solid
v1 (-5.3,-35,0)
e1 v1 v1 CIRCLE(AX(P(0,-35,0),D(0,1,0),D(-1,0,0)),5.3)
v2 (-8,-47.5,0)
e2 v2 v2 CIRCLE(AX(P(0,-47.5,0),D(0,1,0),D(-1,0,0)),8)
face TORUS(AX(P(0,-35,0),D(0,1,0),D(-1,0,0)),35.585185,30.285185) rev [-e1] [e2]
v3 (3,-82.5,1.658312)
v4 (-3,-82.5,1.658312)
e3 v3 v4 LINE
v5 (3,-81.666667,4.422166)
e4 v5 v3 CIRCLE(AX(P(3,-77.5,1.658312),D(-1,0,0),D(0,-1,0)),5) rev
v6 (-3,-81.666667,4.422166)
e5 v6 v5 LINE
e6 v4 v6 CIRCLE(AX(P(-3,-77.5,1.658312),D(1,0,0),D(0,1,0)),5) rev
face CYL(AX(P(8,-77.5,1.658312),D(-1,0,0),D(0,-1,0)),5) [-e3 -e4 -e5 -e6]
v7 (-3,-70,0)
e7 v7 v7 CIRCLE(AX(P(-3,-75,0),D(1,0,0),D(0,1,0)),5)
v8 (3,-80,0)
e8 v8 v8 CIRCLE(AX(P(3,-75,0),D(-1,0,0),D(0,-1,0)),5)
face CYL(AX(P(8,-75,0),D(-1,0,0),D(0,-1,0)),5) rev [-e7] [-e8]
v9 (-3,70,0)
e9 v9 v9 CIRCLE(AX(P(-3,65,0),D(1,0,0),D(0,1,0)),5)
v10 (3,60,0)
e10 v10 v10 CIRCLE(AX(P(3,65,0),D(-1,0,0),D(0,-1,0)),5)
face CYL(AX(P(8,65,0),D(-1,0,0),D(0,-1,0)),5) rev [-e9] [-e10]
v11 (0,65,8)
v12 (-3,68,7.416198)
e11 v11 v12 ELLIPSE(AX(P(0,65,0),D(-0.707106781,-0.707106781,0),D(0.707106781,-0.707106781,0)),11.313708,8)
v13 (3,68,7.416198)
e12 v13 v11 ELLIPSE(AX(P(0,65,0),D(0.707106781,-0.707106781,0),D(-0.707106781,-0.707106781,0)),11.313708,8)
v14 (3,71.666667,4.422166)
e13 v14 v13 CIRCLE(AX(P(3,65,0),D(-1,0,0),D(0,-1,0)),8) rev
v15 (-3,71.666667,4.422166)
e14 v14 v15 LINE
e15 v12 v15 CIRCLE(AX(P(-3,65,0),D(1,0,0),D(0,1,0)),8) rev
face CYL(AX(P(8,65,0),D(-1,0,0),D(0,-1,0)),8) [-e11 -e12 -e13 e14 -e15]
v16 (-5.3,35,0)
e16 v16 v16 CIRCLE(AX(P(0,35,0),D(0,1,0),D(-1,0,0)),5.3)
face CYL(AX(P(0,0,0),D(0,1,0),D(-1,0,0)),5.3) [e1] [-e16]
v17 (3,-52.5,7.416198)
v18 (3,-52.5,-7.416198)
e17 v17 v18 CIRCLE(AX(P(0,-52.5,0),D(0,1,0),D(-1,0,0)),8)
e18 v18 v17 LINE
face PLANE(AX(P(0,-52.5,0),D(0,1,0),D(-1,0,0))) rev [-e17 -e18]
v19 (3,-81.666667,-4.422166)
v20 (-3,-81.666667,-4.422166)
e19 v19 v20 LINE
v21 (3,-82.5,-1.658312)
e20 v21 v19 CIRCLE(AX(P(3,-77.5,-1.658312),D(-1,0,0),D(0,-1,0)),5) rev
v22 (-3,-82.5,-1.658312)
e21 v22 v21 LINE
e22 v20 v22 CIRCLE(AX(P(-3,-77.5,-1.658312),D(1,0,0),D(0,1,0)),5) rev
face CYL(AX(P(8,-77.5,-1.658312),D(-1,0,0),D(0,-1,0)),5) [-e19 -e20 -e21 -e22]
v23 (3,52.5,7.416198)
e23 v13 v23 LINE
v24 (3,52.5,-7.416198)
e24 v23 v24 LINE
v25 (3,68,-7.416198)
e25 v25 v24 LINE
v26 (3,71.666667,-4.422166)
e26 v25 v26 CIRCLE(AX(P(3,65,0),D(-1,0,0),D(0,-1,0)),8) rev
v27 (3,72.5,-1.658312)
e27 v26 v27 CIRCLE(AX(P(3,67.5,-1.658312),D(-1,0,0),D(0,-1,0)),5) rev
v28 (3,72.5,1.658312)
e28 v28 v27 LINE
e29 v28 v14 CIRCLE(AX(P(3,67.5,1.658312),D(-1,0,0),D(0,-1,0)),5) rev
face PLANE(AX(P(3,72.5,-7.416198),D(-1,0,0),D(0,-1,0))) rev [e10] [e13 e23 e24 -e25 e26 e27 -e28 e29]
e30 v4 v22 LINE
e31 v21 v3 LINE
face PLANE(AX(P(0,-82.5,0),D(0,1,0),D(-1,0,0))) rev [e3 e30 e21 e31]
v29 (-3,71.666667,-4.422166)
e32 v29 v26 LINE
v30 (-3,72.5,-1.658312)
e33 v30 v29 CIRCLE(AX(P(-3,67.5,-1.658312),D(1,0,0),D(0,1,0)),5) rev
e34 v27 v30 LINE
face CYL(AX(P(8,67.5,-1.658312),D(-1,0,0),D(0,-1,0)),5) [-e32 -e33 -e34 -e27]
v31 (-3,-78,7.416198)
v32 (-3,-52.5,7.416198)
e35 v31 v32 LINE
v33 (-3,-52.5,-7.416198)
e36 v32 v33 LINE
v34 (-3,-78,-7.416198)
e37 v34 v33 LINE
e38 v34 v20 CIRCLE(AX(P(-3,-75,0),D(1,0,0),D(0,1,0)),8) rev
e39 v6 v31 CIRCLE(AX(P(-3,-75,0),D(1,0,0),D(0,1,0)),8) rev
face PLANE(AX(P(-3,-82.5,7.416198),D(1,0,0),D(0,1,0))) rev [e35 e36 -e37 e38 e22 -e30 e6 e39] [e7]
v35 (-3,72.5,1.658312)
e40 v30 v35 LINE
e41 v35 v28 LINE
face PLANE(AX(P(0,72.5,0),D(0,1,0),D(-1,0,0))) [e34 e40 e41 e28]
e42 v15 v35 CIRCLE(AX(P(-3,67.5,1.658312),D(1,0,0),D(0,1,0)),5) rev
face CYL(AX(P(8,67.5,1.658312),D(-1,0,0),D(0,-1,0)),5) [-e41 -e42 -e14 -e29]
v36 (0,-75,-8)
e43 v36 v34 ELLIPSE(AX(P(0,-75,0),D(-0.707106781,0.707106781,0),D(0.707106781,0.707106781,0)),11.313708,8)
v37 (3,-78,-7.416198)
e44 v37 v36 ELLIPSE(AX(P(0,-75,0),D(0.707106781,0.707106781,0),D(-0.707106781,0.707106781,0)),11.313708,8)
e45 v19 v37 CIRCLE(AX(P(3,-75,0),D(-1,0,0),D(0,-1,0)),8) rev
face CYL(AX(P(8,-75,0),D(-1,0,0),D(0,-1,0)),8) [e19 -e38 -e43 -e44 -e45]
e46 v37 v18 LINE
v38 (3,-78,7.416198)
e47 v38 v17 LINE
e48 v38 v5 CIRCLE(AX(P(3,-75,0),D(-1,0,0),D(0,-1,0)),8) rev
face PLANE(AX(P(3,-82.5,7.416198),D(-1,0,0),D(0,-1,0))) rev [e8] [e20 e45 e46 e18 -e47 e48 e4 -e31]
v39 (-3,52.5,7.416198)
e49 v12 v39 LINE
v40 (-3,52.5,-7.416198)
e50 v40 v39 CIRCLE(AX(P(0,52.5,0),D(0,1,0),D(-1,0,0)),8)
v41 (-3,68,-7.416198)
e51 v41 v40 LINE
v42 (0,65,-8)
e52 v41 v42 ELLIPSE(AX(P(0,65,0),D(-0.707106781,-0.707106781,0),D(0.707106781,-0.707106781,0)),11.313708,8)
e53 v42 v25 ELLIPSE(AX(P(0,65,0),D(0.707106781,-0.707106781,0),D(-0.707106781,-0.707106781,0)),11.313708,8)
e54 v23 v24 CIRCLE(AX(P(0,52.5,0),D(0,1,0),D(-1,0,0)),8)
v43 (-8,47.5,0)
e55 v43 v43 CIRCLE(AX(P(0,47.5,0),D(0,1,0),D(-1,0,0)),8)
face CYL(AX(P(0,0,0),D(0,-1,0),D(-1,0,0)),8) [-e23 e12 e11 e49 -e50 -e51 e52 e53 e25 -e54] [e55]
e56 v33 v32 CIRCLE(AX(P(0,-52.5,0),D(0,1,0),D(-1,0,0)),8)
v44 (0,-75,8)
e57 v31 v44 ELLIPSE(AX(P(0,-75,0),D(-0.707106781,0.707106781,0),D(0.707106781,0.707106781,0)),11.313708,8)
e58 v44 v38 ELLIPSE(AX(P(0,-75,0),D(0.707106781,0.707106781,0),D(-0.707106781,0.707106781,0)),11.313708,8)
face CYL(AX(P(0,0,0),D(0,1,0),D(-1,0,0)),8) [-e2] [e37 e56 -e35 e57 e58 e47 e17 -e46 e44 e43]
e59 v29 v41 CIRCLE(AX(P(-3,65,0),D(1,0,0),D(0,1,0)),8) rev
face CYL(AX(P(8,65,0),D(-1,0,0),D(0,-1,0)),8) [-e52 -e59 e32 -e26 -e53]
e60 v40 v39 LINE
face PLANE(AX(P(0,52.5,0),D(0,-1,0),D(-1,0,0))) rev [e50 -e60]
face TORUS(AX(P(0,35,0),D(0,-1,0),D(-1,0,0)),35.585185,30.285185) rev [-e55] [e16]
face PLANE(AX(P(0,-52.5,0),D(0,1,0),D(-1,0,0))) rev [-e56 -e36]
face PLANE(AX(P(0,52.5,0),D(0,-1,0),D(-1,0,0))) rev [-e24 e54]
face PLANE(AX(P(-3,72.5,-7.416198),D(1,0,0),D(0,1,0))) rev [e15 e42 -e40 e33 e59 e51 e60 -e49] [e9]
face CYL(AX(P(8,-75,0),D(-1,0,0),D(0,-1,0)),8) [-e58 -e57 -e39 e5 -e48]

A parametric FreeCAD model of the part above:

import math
import FreeCAD as App
import Part
import Sketcher

V = App.Vector


def edges_at(feature, points):
    """Names of the edges that pass closest to the given points."""
    edges = feature.Shape.Edges
    near = lambda p: min(range(len(edges)), key=lambda i: edges[i].distToShape(Part.Vertex(*p))[0])
    return sorted({f"Edge{near(p) + 1}" for p in points})

doc = App.newDocument("Part")
body = doc.addObject("PartDesign::Body", "Body")

# Sketch on XY plane
sketch1 = doc.addObject("Sketcher::SketchObject", "Sketch")
body.addObject(sketch1)
sketch1.AttachmentSupport = (doc.XY_Plane, [""])
sketch1.MapMode = "FlatFace"
sketch1.addGeometry(Part.LineSegment(V(0, 0, 0), V(0, -52, 0)), False)
sketch1.addGeometry(Part.LineSegment(V(0, -52, 0), V(8, -52, 0)), False)
sketch1.addGeometry(Part.LineSegment(V(8, -52, 0), V(8, -48, 0)), False)
sketch1.addGeometry(Part.ArcOfCircle(Part.Circle(V(36, -35, 0), V(0, 0, 1), 30), math.radians(-180), math.radians(-156)), False)
sketch1.addGeometry(Part.LineSegment(V(5, -35, 0), V(5, 0, 0)), False)
sketch1.addGeometry(Part.LineSegment(V(5, 0, 0), V(0, 0, 0)), False)
sketch1.addConstraint(Sketcher.Constraint("Coincident", 0, 2, 1, 1))
sketch1.addConstraint(Sketcher.Constraint("Coincident", 1, 2, 2, 1))
sketch1.addConstraint(Sketcher.Constraint("Coincident", 2, 2, 3, 2))
sketch1.addConstraint(Sketcher.Constraint("Tangent", 3, 1, 4, 1))
sketch1.addConstraint(Sketcher.Constraint("Coincident", 4, 2, 5, 1))
sketch1.addConstraint(Sketcher.Constraint("Coincident", 5, 2, 0, 1))
sketch1.addConstraint(Sketcher.Constraint("Vertical", 0))
sketch1.addConstraint(Sketcher.Constraint("Horizontal", 1))
sketch1.addConstraint(Sketcher.Constraint("Vertical", 2))
sketch1.addConstraint(Sketcher.Constraint("Vertical", 4))
sketch1.addConstraint(Sketcher.Constraint("Horizontal", 5))
sketch1.addConstraint(Sketcher.Constraint("Coincident", 5, 2, -1, 1))
sketch1.addConstraint(Sketcher.Constraint("DistanceX", 1, 1, 1, 2, 8.0))
sketch1.addConstraint(Sketcher.Constraint("DistanceY", 2, 1, 2, 2, 5.0))
sketch1.addConstraint(Sketcher.Constraint("DistanceY", 4, 1, 4, 2, 35.0))
sketch1.addConstraint(Sketcher.Constraint("DistanceX", 5, 2, 5, 1, 5.3))
sketch1.addConstraint(Sketcher.Constraint("DistanceY", 0, 2, 0, 1, 52.5))
revolution = doc.addObject("PartDesign::Revolution", "Revolution")
body.addObject(revolution)
revolution.Profile = sketch1
revolution.ReferenceAxis = (sketch1, ["V_Axis"])
revolution.Angle = 360
doc.recompute()

mirrored = doc.addObject("PartDesign::Mirrored", "Mirrored")
body.addObject(mirrored)
mirrored.Originals = [revolution]
mirrored.MirrorPlane = (doc.XZ_Plane, [""])
body.Tip = mirrored

# Sketch on XZ plane
sketch2 = doc.addObject("Sketcher::SketchObject", "Sketch001")
body.addObject(sketch2)
sketch2.AttachmentSupport = (doc.XZ_Plane, [""])
sketch2.MapMode = "FlatFace"
sketch2.AttachmentOffset = App.Placement(V(0, 0, -52.5), App.Rotation())
sketch2.addGeometry(Part.LineSegment(V(-3, -7, 0), V(-3, 7, 0)), False)
sketch2.addGeometry(Part.ArcOfCircle(Part.Circle(V(0, 0, 0), V(0, 0, 1), 8), math.radians(68), math.radians(112)), False)
sketch2.addGeometry(Part.LineSegment(V(3, 7, 0), V(3, -7, 0)), False)
sketch2.addGeometry(Part.ArcOfCircle(Part.Circle(V(0, 0, 0), V(0, 0, 1), 8), math.radians(-112), math.radians(-68)), False)
sketch2.addConstraint(Sketcher.Constraint("Coincident", 0, 2, 1, 2))
sketch2.addConstraint(Sketcher.Constraint("Coincident", 1, 1, 2, 1))
sketch2.addConstraint(Sketcher.Constraint("Coincident", 2, 2, 3, 2))
sketch2.addConstraint(Sketcher.Constraint("Coincident", 3, 1, 0, 1))
sketch2.addConstraint(Sketcher.Constraint("Vertical", 0))
sketch2.addConstraint(Sketcher.Constraint("Vertical", 2))
sketch2.addConstraint(Sketcher.Constraint("Coincident", 1, 3, -1, 1))
sketch2.addConstraint(Sketcher.Constraint("Coincident", 3, 3, -1, 1))
sketch2.addConstraint(Sketcher.Constraint("Equal", 1, 3))
sketch2.addConstraint(Sketcher.Constraint("Horizontal", 0, 2, 1, 1))
sketch2.addConstraint(Sketcher.Constraint("Radius", 1, 8.0))
sketch2.addConstraint(Sketcher.Constraint("DistanceX", 0, 2, -1, 1, 3.0))
pad1 = doc.addObject("PartDesign::Pad", "Pad")
body.addObject(pad1)
pad1.Profile = sketch2
pad1.Length = 20
pad1.Reversed = True

# Sketch on XZ plane
sketch3 = doc.addObject("Sketcher::SketchObject", "Sketch002")
body.addObject(sketch3)
sketch3.AttachmentSupport = (doc.XZ_Plane, [""])
sketch3.MapMode = "FlatFace"
sketch3.AttachmentOffset = App.Placement(V(0, 0, 52.5), App.Rotation())
sketch3.addGeometry(Part.LineSegment(V(3, -7, 0), V(3, 7, 0)), False)
sketch3.addGeometry(Part.ArcOfCircle(Part.Circle(V(0, 0, 0), V(0, 0, 1), 8), math.radians(68), math.radians(112)), False)
sketch3.addGeometry(Part.LineSegment(V(-3, 7, 0), V(-3, -7, 0)), False)
sketch3.addGeometry(Part.ArcOfCircle(Part.Circle(V(0, 0, 0), V(0, 0, 1), 8), math.radians(-112), math.radians(-68)), False)
sketch3.addConstraint(Sketcher.Constraint("Coincident", 0, 2, 1, 1))
sketch3.addConstraint(Sketcher.Constraint("Coincident", 1, 2, 2, 1))
sketch3.addConstraint(Sketcher.Constraint("Coincident", 2, 2, 3, 1))
sketch3.addConstraint(Sketcher.Constraint("Coincident", 3, 2, 0, 1))
sketch3.addConstraint(Sketcher.Constraint("Vertical", 0))
sketch3.addConstraint(Sketcher.Constraint("Vertical", 2))
sketch3.addConstraint(Sketcher.Constraint("Coincident", 1, 3, -1, 1))
sketch3.addConstraint(Sketcher.Constraint("Coincident", 3, 3, -1, 1))
sketch3.addConstraint(Sketcher.Constraint("Equal", 1, 3))
sketch3.addConstraint(Sketcher.Constraint("Horizontal", 0, 2, 1, 2))
sketch3.addConstraint(Sketcher.Constraint("Radius", 1, 8.0))
sketch3.addConstraint(Sketcher.Constraint("DistanceX", -1, 1, 0, 2, 3.0))
pad2 = doc.addObject("PartDesign::Pad", "Pad001")
body.addObject(pad2)
pad2.Profile = sketch3
pad2.Length = 30

# Sketch on YZ plane
sketch4 = doc.addObject("Sketcher::SketchObject", "Sketch003")
body.addObject(sketch4)
sketch4.AttachmentSupport = (doc.YZ_Plane, [""])
sketch4.MapMode = "FlatFace"
sketch4.AttachmentOffset = App.Placement(V(0, 0, -3), App.Rotation())
sketch4.addGeometry(Part.Circle(V(65, 0, 0), V(0, 0, 1), 5), False)
sketch4.addGeometry(Part.Circle(V(-75, 0, 0), V(0, 0, 1), 5), False)
sketch4.addGeometry(Part.LineSegment(V(86, 22, 0), V(86, -18, 0)), False)
sketch4.addGeometry(Part.LineSegment(V(86, -18, 0), V(65, -18, 0)), False)
sketch4.addGeometry(Part.LineSegment(V(65, -18, 0), V(65, -8, 0)), False)
sketch4.addGeometry(Part.ArcOfCircle(Part.Circle(V(65, 0, 0), V(0, 0, 1), 8), math.radians(-90), math.radians(90)), False)
sketch4.addGeometry(Part.LineSegment(V(65, 8, 0), V(65, 22, 0)), False)
sketch4.addGeometry(Part.LineSegment(V(65, 22, 0), V(86, 22, 0)), False)
sketch4.addGeometry(Part.LineSegment(V(-75, 22, 0), V(-75, 8, 0)), False)
sketch4.addGeometry(Part.ArcOfCircle(Part.Circle(V(-75, 0, 0), V(0, 0, 1), 8), math.radians(90), math.radians(270)), False)
sketch4.addGeometry(Part.LineSegment(V(-75, -8, 0), V(-75, -18, 0)), False)
sketch4.addGeometry(Part.LineSegment(V(-75, -18, 0), V(-90, -18, 0)), False)
sketch4.addGeometry(Part.LineSegment(V(-90, -18, 0), V(-90, 22, 0)), False)
sketch4.addGeometry(Part.LineSegment(V(-90, 22, 0), V(-75, 22, 0)), False)
sketch4.addConstraint(Sketcher.Constraint("Coincident", 2, 2, 3, 1))
sketch4.addConstraint(Sketcher.Constraint("Coincident", 3, 2, 4, 1))
sketch4.addConstraint(Sketcher.Constraint("Coincident", 4, 2, 5, 1))
sketch4.addConstraint(Sketcher.Constraint("Coincident", 5, 2, 6, 1))
sketch4.addConstraint(Sketcher.Constraint("Coincident", 6, 2, 7, 1))
sketch4.addConstraint(Sketcher.Constraint("Coincident", 7, 2, 2, 1))
sketch4.addConstraint(Sketcher.Constraint("Coincident", 8, 2, 9, 1))
sketch4.addConstraint(Sketcher.Constraint("Coincident", 9, 2, 10, 1))
sketch4.addConstraint(Sketcher.Constraint("Coincident", 10, 2, 11, 1))
sketch4.addConstraint(Sketcher.Constraint("Coincident", 11, 2, 12, 1))
sketch4.addConstraint(Sketcher.Constraint("Coincident", 12, 2, 13, 1))
sketch4.addConstraint(Sketcher.Constraint("Coincident", 13, 2, 8, 1))
sketch4.addConstraint(Sketcher.Constraint("Vertical", 2))
sketch4.addConstraint(Sketcher.Constraint("Horizontal", 3))
sketch4.addConstraint(Sketcher.Constraint("Vertical", 4))
sketch4.addConstraint(Sketcher.Constraint("Vertical", 6))
sketch4.addConstraint(Sketcher.Constraint("Horizontal", 7))
sketch4.addConstraint(Sketcher.Constraint("Vertical", 8))
sketch4.addConstraint(Sketcher.Constraint("Vertical", 10))
sketch4.addConstraint(Sketcher.Constraint("Horizontal", 11))
sketch4.addConstraint(Sketcher.Constraint("Vertical", 12))
sketch4.addConstraint(Sketcher.Constraint("Horizontal", 13))
sketch4.addConstraint(Sketcher.Constraint("Coincident", 5, 3, 0, 3))
sketch4.addConstraint(Sketcher.Constraint("Coincident", 9, 3, 1, 3))
sketch4.addConstraint(Sketcher.Constraint("Equal", 0, 1))
sketch4.addConstraint(Sketcher.Constraint("Equal", 5, 9))
sketch4.addConstraint(Sketcher.Constraint("Symmetric", 4, 2, 5, 2, -1))
sketch4.addConstraint(Sketcher.Constraint("Symmetric", 8, 2, 9, 2, -1))
sketch4.addConstraint(Sketcher.Constraint("Horizontal", 3, 2, 10, 2))
sketch4.addConstraint(Sketcher.Constraint("Horizontal", 7, 2, 12, 2))
sketch4.addConstraint(Sketcher.Constraint("Vertical", 5, 3, 3, 2))
sketch4.addConstraint(Sketcher.Constraint("Vertical", 9, 3, 8, 2))
sketch4.addConstraint(Sketcher.Constraint("Diameter", 0, 10.0))
sketch4.addConstraint(Sketcher.Constraint("Radius", 5, 8.0))
sketch4.addConstraint(Sketcher.Constraint("DistanceX", -1, 1, 0, 3, 65.0))
sketch4.addConstraint(Sketcher.Constraint("DistanceX", 1, 3, -1, 1, 75.0))
sketch4.addConstraint(Sketcher.Constraint("DistanceX", 11, 2, 11, 1, 14.542719))
sketch4.addConstraint(Sketcher.Constraint("DistanceX", 3, 2, 3, 1, 21.225483))
sketch4.addConstraint(Sketcher.Constraint("DistanceY", 2, 2, 2, 1, 40.120433))
sketch4.addConstraint(Sketcher.Constraint("DistanceY", 4, 1, 4, 2, 10.407176))
pocket1 = doc.addObject("PartDesign::Pocket", "Pocket")
body.addObject(pocket1)
pocket1.Profile = sketch4
pocket1.Type = "ThroughAll"
pocket1.Midplane = True
doc.recompute()

fillet = doc.addObject("PartDesign::Fillet", "Fillet")
body.addObject(fillet)
fillet.Base = (pocket1, edges_at(pocket1, [
    (0, -82.5, 2.784),
    (0, -82.5, -2.784),
    (0, 72.5, 2.784),
    (0, 72.5, -2.784),
]))
fillet.Radius = 5

doc.recompute()
